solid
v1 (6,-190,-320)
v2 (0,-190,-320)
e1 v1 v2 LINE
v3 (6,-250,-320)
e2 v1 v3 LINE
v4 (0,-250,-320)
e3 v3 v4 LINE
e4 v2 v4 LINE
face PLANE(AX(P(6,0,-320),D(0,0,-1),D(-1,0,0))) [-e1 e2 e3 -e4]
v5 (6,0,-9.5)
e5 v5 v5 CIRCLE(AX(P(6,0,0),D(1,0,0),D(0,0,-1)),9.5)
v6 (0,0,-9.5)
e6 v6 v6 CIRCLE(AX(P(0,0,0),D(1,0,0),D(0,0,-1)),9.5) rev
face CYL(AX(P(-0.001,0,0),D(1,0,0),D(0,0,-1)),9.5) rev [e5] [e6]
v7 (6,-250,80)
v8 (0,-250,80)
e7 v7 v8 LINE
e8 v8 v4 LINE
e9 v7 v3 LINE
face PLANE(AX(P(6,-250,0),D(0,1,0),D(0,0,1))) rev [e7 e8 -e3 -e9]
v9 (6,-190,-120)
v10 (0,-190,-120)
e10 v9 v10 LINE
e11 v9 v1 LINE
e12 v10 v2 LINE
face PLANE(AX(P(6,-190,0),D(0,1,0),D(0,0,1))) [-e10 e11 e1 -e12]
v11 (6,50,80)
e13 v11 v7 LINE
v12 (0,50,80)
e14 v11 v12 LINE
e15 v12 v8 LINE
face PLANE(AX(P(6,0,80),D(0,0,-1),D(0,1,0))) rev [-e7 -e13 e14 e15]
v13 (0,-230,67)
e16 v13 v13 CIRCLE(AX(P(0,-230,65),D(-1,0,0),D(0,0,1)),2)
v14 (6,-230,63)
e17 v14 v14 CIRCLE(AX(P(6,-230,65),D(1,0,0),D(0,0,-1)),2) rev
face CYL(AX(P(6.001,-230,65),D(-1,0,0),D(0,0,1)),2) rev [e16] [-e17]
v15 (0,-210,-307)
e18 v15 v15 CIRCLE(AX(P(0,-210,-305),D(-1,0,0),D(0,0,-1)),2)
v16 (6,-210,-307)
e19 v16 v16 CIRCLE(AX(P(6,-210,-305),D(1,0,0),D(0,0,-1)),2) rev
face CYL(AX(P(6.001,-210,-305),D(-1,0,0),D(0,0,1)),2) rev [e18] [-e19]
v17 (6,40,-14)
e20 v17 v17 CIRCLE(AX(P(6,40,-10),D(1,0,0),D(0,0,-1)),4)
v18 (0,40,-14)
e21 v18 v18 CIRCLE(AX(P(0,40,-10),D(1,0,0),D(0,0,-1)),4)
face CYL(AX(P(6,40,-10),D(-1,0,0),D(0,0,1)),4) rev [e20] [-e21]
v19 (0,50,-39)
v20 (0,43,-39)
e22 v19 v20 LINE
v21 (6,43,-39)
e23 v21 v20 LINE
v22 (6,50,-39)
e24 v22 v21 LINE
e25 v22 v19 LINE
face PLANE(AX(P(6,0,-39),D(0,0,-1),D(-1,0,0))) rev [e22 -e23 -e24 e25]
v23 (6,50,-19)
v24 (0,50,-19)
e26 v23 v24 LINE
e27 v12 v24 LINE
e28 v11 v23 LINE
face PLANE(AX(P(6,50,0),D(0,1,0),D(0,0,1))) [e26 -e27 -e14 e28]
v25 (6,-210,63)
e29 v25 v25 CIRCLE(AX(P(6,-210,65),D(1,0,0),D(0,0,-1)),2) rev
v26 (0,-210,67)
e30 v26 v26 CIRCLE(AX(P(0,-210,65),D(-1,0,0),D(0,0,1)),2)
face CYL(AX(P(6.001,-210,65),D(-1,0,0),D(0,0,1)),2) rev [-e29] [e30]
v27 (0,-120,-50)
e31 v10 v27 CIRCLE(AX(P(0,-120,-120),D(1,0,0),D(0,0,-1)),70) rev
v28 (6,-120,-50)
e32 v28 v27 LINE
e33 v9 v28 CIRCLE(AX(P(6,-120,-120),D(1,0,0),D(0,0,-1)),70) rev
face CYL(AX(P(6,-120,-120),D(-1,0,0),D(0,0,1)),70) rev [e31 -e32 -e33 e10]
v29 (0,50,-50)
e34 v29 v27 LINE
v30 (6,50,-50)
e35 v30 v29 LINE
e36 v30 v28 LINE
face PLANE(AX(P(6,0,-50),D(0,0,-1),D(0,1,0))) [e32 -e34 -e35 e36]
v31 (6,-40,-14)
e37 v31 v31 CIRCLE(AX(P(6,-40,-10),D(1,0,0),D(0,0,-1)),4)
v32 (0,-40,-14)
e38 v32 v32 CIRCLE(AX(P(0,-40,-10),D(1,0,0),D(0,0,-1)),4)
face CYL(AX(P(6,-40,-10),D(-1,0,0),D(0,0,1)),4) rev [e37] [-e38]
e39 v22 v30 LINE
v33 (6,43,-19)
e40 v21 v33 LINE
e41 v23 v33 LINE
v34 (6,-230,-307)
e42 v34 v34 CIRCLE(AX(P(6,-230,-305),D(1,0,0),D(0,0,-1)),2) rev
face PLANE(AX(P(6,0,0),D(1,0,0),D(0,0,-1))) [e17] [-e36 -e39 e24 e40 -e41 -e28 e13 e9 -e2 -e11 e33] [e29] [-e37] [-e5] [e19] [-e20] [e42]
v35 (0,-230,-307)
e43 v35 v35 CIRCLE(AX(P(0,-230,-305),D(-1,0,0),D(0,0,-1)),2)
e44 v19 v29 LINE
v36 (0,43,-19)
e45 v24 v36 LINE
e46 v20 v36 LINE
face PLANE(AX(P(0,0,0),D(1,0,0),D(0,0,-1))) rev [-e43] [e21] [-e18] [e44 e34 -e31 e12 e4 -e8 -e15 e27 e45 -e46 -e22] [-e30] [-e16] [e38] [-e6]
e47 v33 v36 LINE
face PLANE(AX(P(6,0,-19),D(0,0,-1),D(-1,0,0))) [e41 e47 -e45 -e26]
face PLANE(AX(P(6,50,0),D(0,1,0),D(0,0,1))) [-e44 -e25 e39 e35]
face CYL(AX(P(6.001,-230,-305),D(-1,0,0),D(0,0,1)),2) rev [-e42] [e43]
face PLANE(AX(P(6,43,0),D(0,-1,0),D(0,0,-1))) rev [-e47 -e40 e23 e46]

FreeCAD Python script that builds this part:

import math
import FreeCAD as App
import Part
import Sketcher

V = App.Vector


def add_polygon(sketch, points):
    """Adds a closed chain of lines whose ends are joined by coincident constraints."""
    first, n = sketch.GeometryCount, len(points)
    for a, b in zip(points, points[1:] + points[:1]):
        sketch.addGeometry(Part.LineSegment(App.Vector(*a, 0), App.Vector(*b, 0)), False)
    for i in range(n):
        sketch.addConstraint(Sketcher.Constraint("Coincident", first + i, 2, first + (i + 1) % n, 1))

doc = App.newDocument("Part")
body = doc.addObject("PartDesign::Body", "Body")

# Sketch on YZ plane
sketch1 = body.newObject("Sketcher::SketchObject", "Sketch")
sketch1.AttachmentSupport = (doc.getObject("YZ_Plane"), [""])
sketch1.MapMode = "FlatFace"
sketch1.addGeometry([
    Part.LineSegment(V(-190, 80, 0), V(-250, 80, 0)),  # 0
    Part.LineSegment(V(-250, 80, 0), V(-250, -320, 0)),  # 1
    Part.LineSegment(V(-250, -320, 0), V(-190, -320, 0)),  # 2
    Part.LineSegment(V(-190, -320, 0), V(-190, -120, 0)),  # 3
    Part.ArcOfCircle(Part.Circle(V(-120, -120, 0), V(0, 0, 1), 70), math.radians(90), math.radians(180)),  # 4
    Part.LineSegment(V(-120, -50, 0), V(50, -50, 0)),  # 5
    Part.LineSegment(V(50, -50, 0), V(50, -39, 0)),  # 6
    Part.LineSegment(V(50, -39, 0), V(43, -39, 0)),  # 7
    Part.LineSegment(V(43, -39, 0), V(43, -19, 0)),  # 8
    Part.LineSegment(V(43, -19, 0), V(50, -19, 0)),  # 9
    Part.LineSegment(V(50, -19, 0), V(50, 30, 0)),  # 10
    Part.LineSegment(V(50, 30, 0), V(-120, 30, 0)),  # 11
    Part.ArcOfCircle(Part.Circle(V(-120, 103.9, 0), V(0, 0, 1), 73.9), math.radians(-161), math.radians(-90)),  # 12
    Part.Circle(V(-40, -10, 0), V(0, 0, 1), 4),  # 13
    Part.Circle(V(0, 0, 0), V(0, 0, 1), 4),  # 14
    Part.Circle(V(40, -10, 0), V(0, 0, 1), 4),  # 15
], False)
sketch1.addConstraint([
    Sketcher.Constraint("Coincident", 0, 2, 1, 1),
    Sketcher.Constraint("Coincident", 1, 2, 2, 1),
    Sketcher.Constraint("Coincident", 2, 2, 3, 1),
    Sketcher.Constraint("Tangent", 3, 2, 4, 2),
    Sketcher.Constraint("Tangent", 4, 1, 5, 1),
    Sketcher.Constraint("Coincident", 5, 2, 6, 1),
    Sketcher.Constraint("Coincident", 6, 2, 7, 1),
    Sketcher.Constraint("Coincident", 7, 2, 8, 1),
    Sketcher.Constraint("Coincident", 8, 2, 9, 1),
    Sketcher.Constraint("Coincident", 9, 2, 10, 1),
    Sketcher.Constraint("Coincident", 10, 2, 11, 1),
    Sketcher.Constraint("Tangent", 11, 2, 12, 2),
    Sketcher.Constraint("Coincident", 12, 1, 0, 1),
    Sketcher.Constraint("Horizontal", 0),
    Sketcher.Constraint("Vertical", 1),
    Sketcher.Constraint("Horizontal", 2),
    Sketcher.Constraint("Vertical", 3),
    Sketcher.Constraint("Horizontal", 5),
    Sketcher.Constraint("Vertical", 6),
    Sketcher.Constraint("Horizontal", 7),
    Sketcher.Constraint("Vertical", 8),
    Sketcher.Constraint("Horizontal", 9),
    Sketcher.Constraint("Vertical", 10),
    Sketcher.Constraint("Horizontal", 11),
    Sketcher.Constraint("Coincident", 14, 3, -1, 1),
    Sketcher.Constraint("Equal", 13, 14),
    Sketcher.Constraint("Equal", 14, 15),
    Sketcher.Constraint("Symmetric", 13, 3, 15, 3, -2),
    Sketcher.Constraint("Vertical", 6, 2, 9, 2),
    Sketcher.Constraint("Vertical", 3, 2, 12, 1),
    Sketcher.Constraint("Diameter", 13, 8.0),
    Sketcher.Constraint("Radius", 4, 70.0),
    Sketcher.Constraint("DistanceX", 0, 2, 0, 1, 60.0),
    Sketcher.Constraint("DistanceX", 5, 1, 5, 2, 170.0),
    Sketcher.Constraint("DistanceX", 7, 2, 7, 1, 7.0),
    Sketcher.Constraint("DistanceY", 1, 2, 1, 1, 400.0),
    Sketcher.Constraint("DistanceY", 3, 1, 3, 2, 200.0),
    Sketcher.Constraint("DistanceY", 6, 1, 6, 2, 11.0),
    Sketcher.Constraint("DistanceY", 8, 1, 8, 2, 20.0),
    Sketcher.Constraint("DistanceY", 10, 1, 10, 2, 49.0),
    Sketcher.Constraint("DistanceX", 4, 3, -1, 1, 120.0),
    Sketcher.Constraint("DistanceY", 4, 3, -1, 1, 120.0),
    Sketcher.Constraint("DistanceX", 13, 3, -1, 1, 40.0),
    Sketcher.Constraint("DistanceY", 13, 3, -1, 1, 10.0),
    Sketcher.Constraint("Radius", 12, 73.930524),
])
pad1 = body.newObject("PartDesign::Pad", "Pad")
pad1.Profile = sketch1
pad1.Length = 6

# Sketch on YZ plane
sketch2 = body.newObject("Sketcher::SketchObject", "Sketch001")
sketch2.AttachmentSupport = (doc.getObject("YZ_Plane"), [""])
sketch2.MapMode = "FlatFace"
sketch2.AttachmentOffset = App.Placement(V(0, 0, 6), App.Rotation())
sketch2.addGeometry(Part.Circle(V(0, 0, 0), V(0, 0, 1), 10), False)
sketch2.addConstraint([
    Sketcher.Constraint("Coincident", 0, 3, -1, 1),
    Sketcher.Constraint("Diameter", 0, 19.0),
])
pocket1 = body.newObject("PartDesign::Pocket", "Pocket")
pocket1.Profile = sketch2
pocket1.Length = 6

# Sketch on YZ plane
sketch3 = body.newObject("Sketcher::SketchObject", "Sketch002")
sketch3.AttachmentSupport = (doc.getObject("YZ_Plane"), [""])
sketch3.MapMode = "FlatFace"
add_polygon(sketch3, [(50, 30), (-250, 30), (-250, 80), (50, 80)])  # lines 0-3
sketch3.addConstraint([
    Sketcher.Constraint("Horizontal", 0),
    Sketcher.Constraint("Vertical", 1),
    Sketcher.Constraint("Horizontal", 2),
    Sketcher.Constraint("Vertical", 3),
    Sketcher.Constraint("DistanceX", 0, 2, 0, 1, 300.0),
    Sketcher.Constraint("DistanceY", 1, 1, 1, 2, 50.0),
    Sketcher.Constraint("DistanceX", 0, 2, -1, 1, 250.0),
    Sketcher.Constraint("DistanceY", -1, 1, 0, 2, 30.0),
])
pad2 = body.newObject("PartDesign::Pad", "Pad001")
pad2.Profile = sketch3
pad2.Length = 6

# Sketch on YZ plane
sketch4 = body.newObject("Sketcher::SketchObject", "Sketch003")
sketch4.AttachmentSupport = (doc.getObject("YZ_Plane"), [""])
sketch4.MapMode = "FlatFace"
sketch4.addGeometry(Part.Circle(V(-210, 65, 0), V(0, 0, 1), 2), False)
sketch4.addConstraint([
    Sketcher.Constraint("Diameter", 0, 4.0),
    Sketcher.Constraint("DistanceX", 0, 3, -1, 1, 210.0),
    Sketcher.Constraint("DistanceY", -1, 1, 0, 3, 65.0),
])
pocket2 = body.newObject("PartDesign::Pocket", "Pocket001")
pocket2.Profile = sketch4
pocket2.Type = "UpToFirst"
pocket2.Reversed = True

# Sketch on YZ plane
sketch5 = body.newObject("Sketcher::SketchObject", "Sketch004")
sketch5.AttachmentSupport = (doc.getObject("YZ_Plane"), [""])
sketch5.MapMode = "FlatFace"
sketch5.addGeometry(Part.Circle(V(-230, 65, 0), V(0, 0, 1), 2), False)
sketch5.addConstraint([
    Sketcher.Constraint("Diameter", 0, 4.0),
    Sketcher.Constraint("DistanceX", 0, 3, -1, 1, 230.0),
    Sketcher.Constraint("DistanceY", -1, 1, 0, 3, 65.0),
])
pocket3 = body.newObject("PartDesign::Pocket", "Pocket002")
pocket3.Profile = sketch5
pocket3.Type = "UpToFirst"
pocket3.Reversed = True

# Sketch on YZ plane
sketch6 = body.newObject("Sketcher::SketchObject", "Sketch005")
sketch6.AttachmentSupport = (doc.getObject("YZ_Plane"), [""])
sketch6.MapMode = "FlatFace"
sketch6.addGeometry(Part.Circle(V(-230, -305, 0), V(0, 0, 1), 2), False)
sketch6.addConstraint([
    Sketcher.Constraint("Diameter", 0, 4.0),
    Sketcher.Constraint("DistanceX", 0, 3, -1, 1, 230.0),
    Sketcher.Constraint("DistanceY", 0, 3, -1, 1, 305.0),
])
pocket4 = body.newObject("PartDesign::Pocket", "Pocket003")
pocket4.Profile = sketch6
pocket4.Type = "UpToFirst"
pocket4.Reversed = True

# Sketch on YZ plane
sketch7 = body.newObject("Sketcher::SketchObject", "Sketch006")
sketch7.AttachmentSupport = (doc.getObject("YZ_Plane"), [""])
sketch7.MapMode = "FlatFace"
sketch7.addGeometry(Part.Circle(V(-210, -305, 0), V(0, 0, 1), 2), False)
sketch7.addConstraint([
    Sketcher.Constraint("Diameter", 0, 4.0),
    Sketcher.Constraint("DistanceX", 0, 3, -1, 1, 210.0),
    Sketcher.Constraint("DistanceY", 0, 3, -1, 1, 305.0),
])
pocket5 = body.newObject("PartDesign::Pocket", "Pocket004")
pocket5.Profile = sketch7
pocket5.Type = "UpToFirst"
pocket5.Reversed = True

doc.recompute()
